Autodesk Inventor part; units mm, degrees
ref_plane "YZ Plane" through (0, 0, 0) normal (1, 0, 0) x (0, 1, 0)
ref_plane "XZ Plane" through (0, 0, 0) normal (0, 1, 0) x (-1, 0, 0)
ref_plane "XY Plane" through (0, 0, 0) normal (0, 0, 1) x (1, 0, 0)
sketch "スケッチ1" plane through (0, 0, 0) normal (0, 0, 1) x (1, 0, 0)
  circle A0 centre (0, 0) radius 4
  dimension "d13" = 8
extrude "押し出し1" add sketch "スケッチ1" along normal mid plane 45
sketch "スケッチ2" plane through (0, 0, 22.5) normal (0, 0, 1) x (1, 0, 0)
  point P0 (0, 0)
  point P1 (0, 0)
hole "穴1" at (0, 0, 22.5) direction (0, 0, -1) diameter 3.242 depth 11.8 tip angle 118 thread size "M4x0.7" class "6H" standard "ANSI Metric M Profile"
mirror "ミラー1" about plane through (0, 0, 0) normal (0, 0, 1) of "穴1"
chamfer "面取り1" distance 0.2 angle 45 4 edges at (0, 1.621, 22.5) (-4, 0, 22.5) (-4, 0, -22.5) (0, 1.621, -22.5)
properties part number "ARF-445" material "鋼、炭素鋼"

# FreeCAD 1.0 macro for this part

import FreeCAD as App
import Part
import Sketcher
from FreeCAD import Vector
Q = App.Units.Quantity


def edges_at(feature, points):
    """Names of the edges that pass closest to the given points."""
    edges = feature.Shape.Edges
    near = lambda p: min(range(len(edges)), key=lambda i: edges[i].distToShape(Part.Vertex(*p))[0])
    return sorted({f"Edge{near(p) + 1}" for p in points})

doc = App.newDocument("Part")
body = doc.addObject("PartDesign::Body", "Body")

# Sketch on XY plane
sketch1 = body.newObject("Sketcher::SketchObject", "Sketch")
sketch1.AttachmentSupport = (doc.getObject("XY_Plane"), [""])
sketch1.MapMode = "FlatFace"
sketch1.addGeometry(Part.Circle(Vector(0, 0, 0), Vector(0, 0, 1), 4), False)
sketch1.addConstraint(Sketcher.Constraint("Coincident", 0, 3, -1, 1))
sketch1.addConstraint(Sketcher.Constraint("Diameter", 0, Q("8 mm")))
pad1 = body.newObject("PartDesign::Pad", "Pad")
pad1.Profile = sketch1
pad1.Length = 45
pad1.Midplane = True

# Sketch on XY plane
sketch2 = body.newObject("Sketcher::SketchObject", "Sketch001")
sketch2.AttachmentSupport = (doc.getObject("XY_Plane"), [""])
sketch2.MapMode = "FlatFace"
sketch2.AttachmentOffset = App.Placement(Vector(0, 0, 22.5), App.Rotation())
sketch2.addGeometry(Part.Circle(Vector(0, 0, 0), Vector(0, 0, 1), 1.6), False)
sketch2.addConstraint(Sketcher.Constraint("Coincident", 0, 3, -1, 1))
sketch2.addConstraint(Sketcher.Constraint("Diameter", 0, Q("3.242 mm")))
doc.recompute()
hole = body.newObject("PartDesign::Hole", "Hole")
hole.Profile = sketch2
hole.ThreadType = "None"
hole.Diameter = 3.242
hole.DepthType = "Dimension"
hole.Depth = 11.8
hole.DrillPoint = "Angled"
hole.DrillPointAngle = 118
doc.recompute()

mirrored = body.newObject("PartDesign::Mirrored", "Mirrored")
mirrored.Originals = [hole]
mirrored.MirrorPlane = (doc.getObject("XY_Plane"), [""])
body.Tip = mirrored
doc.recompute()

chamfer = body.newObject("PartDesign::Chamfer", "Chamfer")
chamfer.Base = (mirrored, edges_at(mirrored, [
    (0, 1.621, 22.5),
    (-4, 0, 22.5),
    (-4, 0, -22.5),
    (0, 1.621, -22.5),
]))
chamfer.Size = 0.2

doc.recompute()
